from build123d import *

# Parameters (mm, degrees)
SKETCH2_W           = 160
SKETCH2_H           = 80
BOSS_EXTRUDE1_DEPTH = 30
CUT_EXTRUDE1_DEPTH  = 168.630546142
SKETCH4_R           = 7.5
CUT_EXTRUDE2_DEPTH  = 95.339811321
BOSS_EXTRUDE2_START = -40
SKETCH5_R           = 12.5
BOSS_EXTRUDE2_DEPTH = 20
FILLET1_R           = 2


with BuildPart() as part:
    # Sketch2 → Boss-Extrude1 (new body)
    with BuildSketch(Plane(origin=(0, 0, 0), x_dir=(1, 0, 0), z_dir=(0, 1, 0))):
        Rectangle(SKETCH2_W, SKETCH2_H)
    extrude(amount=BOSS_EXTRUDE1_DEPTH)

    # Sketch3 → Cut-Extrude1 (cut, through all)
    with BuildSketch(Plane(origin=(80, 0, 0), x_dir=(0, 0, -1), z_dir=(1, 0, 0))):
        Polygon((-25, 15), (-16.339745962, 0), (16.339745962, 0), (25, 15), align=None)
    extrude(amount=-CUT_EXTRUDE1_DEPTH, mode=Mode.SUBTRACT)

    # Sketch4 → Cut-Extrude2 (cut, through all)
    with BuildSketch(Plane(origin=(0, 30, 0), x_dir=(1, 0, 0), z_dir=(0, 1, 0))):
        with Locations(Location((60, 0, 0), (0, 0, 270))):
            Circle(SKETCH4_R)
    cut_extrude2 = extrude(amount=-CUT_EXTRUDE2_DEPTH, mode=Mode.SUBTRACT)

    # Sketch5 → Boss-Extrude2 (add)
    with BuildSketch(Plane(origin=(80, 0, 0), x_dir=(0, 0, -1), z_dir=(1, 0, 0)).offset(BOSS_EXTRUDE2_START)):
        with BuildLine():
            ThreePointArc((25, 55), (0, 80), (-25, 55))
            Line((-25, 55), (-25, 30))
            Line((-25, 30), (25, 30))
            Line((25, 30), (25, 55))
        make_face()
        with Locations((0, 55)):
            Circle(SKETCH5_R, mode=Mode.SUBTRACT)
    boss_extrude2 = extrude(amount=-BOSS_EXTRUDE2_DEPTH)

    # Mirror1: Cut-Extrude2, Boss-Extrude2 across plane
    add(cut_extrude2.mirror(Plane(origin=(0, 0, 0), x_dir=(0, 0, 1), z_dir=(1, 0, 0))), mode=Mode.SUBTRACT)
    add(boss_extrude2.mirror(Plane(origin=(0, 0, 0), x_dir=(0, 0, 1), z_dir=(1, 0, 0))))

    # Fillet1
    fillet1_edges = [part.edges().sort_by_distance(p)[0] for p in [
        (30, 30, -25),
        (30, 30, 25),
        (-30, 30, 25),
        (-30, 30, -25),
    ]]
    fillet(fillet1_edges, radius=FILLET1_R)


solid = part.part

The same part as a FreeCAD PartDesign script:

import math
import FreeCAD as App
import Part
import Sketcher
Q = App.Units.Quantity


def edges_at(feature, points):
    """Names of the edges that pass closest to the given points."""
    edges = feature.Shape.Edges
    near = lambda p: min(range(len(edges)), key=lambda i: edges[i].distToShape(Part.Vertex(*p))[0])
    return sorted({f"Edge{near(p) + 1}" for p in points})


def add_polygon(sketch, points):
    """Adds a closed chain of lines whose ends are joined by coincident constraints."""
    first, n = sketch.GeometryCount, len(points)
    for a, b in zip(points, points[1:] + points[:1]):
        sketch.addGeometry(Part.LineSegment(App.Vector(*a, 0), App.Vector(*b, 0)), False)
    for i in range(n):
        sketch.addConstraint(Sketcher.Constraint("Coincident", first + i, 2, first + (i + 1) % n, 1))

doc = App.newDocument("Part")
params = doc.addObject("Spreadsheet::Sheet", "Params")
for row, (alias, value) in enumerate([
    ("sketch1_width", "160 mm"),
    ("sketch1_height", "80 mm"),
    ("pad1_length", "30 mm"),
    ("sketch2_height", "50 mm"),
    ("sketch3_diameter", "15 mm"),
    ("sketch4_diameter", "25 mm"),
    ("sketch4_radius", "25 mm"),
    ("sketch4_width", "25 mm"),
    ("pad2_length", "20 mm"),
    ("fillet_radius", "2 mm"),
], start=1):
    params.set(f"A{row}", alias)
    params.set(f"B{row}", "=" + value)
    params.setAlias(f"B{row}", alias)

body = doc.addObject("PartDesign::Body", "Body")

sketch1 = body.newObject("Sketcher::SketchObject", "Sketch")
sketch1.AttachmentSupport = (doc.getObject("XZ_Plane"), [""])
sketch1.MapMode = "FlatFace"
add_polygon(sketch1, [(-80, -40), (-80, 40), (80, 40), (80, -40)])
sketch1.addConstraint([
    Sketcher.Constraint("Vertical", 0),
    Sketcher.Constraint("Horizontal", 1),
    Sketcher.Constraint("Vertical", 2),
    Sketcher.Constraint("Horizontal", 3),
    Sketcher.Constraint("Symmetric", 0, 2, 2, 2, -1, 1),
    Sketcher.Constraint("DistanceX", 1, 1, 1, 2, 160.0),
    Sketcher.Constraint("DistanceY", 0, 1, 0, 2, 80.0),
])
sketch1.setExpression("Constraints[9]", "Params.sketch1_width")
sketch1.setExpression("Constraints[10]", "Params.sketch1_height")
pad1 = body.newObject("PartDesign::Pad", "Pad")
pad1.Profile = sketch1
pad1.setExpression("Length", "Params.pad1_length")
pad1.Reversed = True

sketch2 = body.newObject("Sketcher::SketchObject", "Sketch001")
sketch2.AttachmentSupport = (doc.getObject("YZ_Plane"), [""])
sketch2.MapMode = "FlatFace"
sketch2.AttachmentOffset = App.Placement(App.Vector(0, 0, 80), App.Rotation())
add_polygon(sketch2, [(15, 25), (0, 16), (0, -16), (15, -25)])
sketch2.addConstraint([
    Sketcher.Constraint("Vertical", 1),
    Sketcher.Constraint("Vertical", 3),
    Sketcher.Constraint("Symmetric", 0, 2, 1, 2, -1, 1),
    Sketcher.Constraint("Equal", 0, 2),
    Sketcher.Constraint("DistanceY", 3, 1, 3, 2, 50.0),
    Sketcher.Constraint("Angle", 0, Q("-150 deg")),
    Sketcher.Constraint("DistanceX", -1, 1, 2, 2, 15.0),
])
sketch2.setExpression("Constraints[8]", "Params.sketch2_height")
pocket1 = body.newObject("PartDesign::Pocket", "Pocket")
pocket1.Profile = sketch2
pocket1.Type = "ThroughAll"

sketch3 = body.newObject("Sketcher::SketchObject", "Sketch002")
sketch3.AttachmentSupport = (doc.getObject("XZ_Plane"), [""])
sketch3.MapMode = "FlatFace"
sketch3.AttachmentOffset = App.Placement(App.Vector(0, 0, -30), App.Rotation())
sketch3.addGeometry(Part.Circle(App.Vector(60, 0, 0), App.Vector(0, 0, 1), 8), False)
sketch3.addConstraint([
    Sketcher.Constraint("PointOnObject", 0, 3, -1),
    Sketcher.Constraint("Diameter", 0, 15.0),
    Sketcher.Constraint("DistanceX", -1, 1, 0, 3, 60.0),
])
sketch3.setExpression("Constraints[1]", "Params.sketch3_diameter")
pocket2 = body.newObject("PartDesign::Pocket", "Pocket001")
pocket2.Profile = sketch3
pocket2.Type = "ThroughAll"
pocket2.Reversed = True

sketch4 = body.newObject("Sketcher::SketchObject", "Sketch003")
sketch4.AttachmentSupport = (doc.getObject("YZ_Plane"), [""])
sketch4.MapMode = "FlatFace"
sketch4.AttachmentOffset = App.Placement(App.Vector(0, 0, 40), App.Rotation())
sketch4.addGeometry([
    Part.ArcOfCircle(Part.Circle(App.Vector(55, 0, 0), App.Vector(0, 0, 1), 25), math.radians(-90), math.radians(90)),
    Part.LineSegment(App.Vector(55, 25, 0), App.Vector(30, 25, 0)),
    Part.LineSegment(App.Vector(30, 25, 0), App.Vector(30, -25, 0)),
    Part.LineSegment(App.Vector(30, -25, 0), App.Vector(55, -25, 0)),
    Part.Circle(App.Vector(55, 0, 0), App.Vector(0, 0, 1), 12),
], False)
sketch4.addConstraint([
    Sketcher.Constraint("Tangent", 0, 2, 1, 1),
    Sketcher.Constraint("Coincident", 1, 2, 2, 1),
    Sketcher.Constraint("Coincident", 2, 2, 3, 1),
    Sketcher.Constraint("Tangent", 3, 2, 0, 1),
    Sketcher.Constraint("Horizontal", 1),
    Sketcher.Constraint("Vertical", 2),
    Sketcher.Constraint("Horizontal", 3),
    Sketcher.Constraint("Coincident", 4, 3, 0, 3),
    Sketcher.Constraint("PointOnObject", 0, 3, -1),
    Sketcher.Constraint("Diameter", 4, 25.0),
    Sketcher.Constraint("Radius", 0, 25.0),
    Sketcher.Constraint("DistanceX", 1, 2, 1, 1, 25.0),
    Sketcher.Constraint("DistanceX", -1, 1, 0, 3, 55.0),
])
sketch4.setExpression("Constraints[9]", "Params.sketch4_diameter")
sketch4.setExpression("Constraints[10]", "Params.sketch4_radius")
sketch4.setExpression("Constraints[11]", "Params.sketch4_width")
pad2 = body.newObject("PartDesign::Pad", "Pad001")
pad2.Profile = sketch4
pad2.setExpression("Length", "Params.pad2_length")
pad2.Reversed = True
doc.recompute()

mirrored = body.newObject("PartDesign::Mirrored", "Mirrored")
mirrored.Originals = [pocket2, pad2]
mirrored.MirrorPlane = (doc.getObject("YZ_Plane"), [""])
body.Tip = mirrored
doc.recompute()

fillet = body.newObject("PartDesign::Fillet", "Fillet")
fillet.Base = (mirrored, edges_at(mirrored, [
    (30, 30, -25),
    (30, 30, 25),
    (-30, 30, 25),
    (-30, 30, -25),
]))
fillet.setExpression("Radius", "Params.fillet_radius")

doc.recompute()
